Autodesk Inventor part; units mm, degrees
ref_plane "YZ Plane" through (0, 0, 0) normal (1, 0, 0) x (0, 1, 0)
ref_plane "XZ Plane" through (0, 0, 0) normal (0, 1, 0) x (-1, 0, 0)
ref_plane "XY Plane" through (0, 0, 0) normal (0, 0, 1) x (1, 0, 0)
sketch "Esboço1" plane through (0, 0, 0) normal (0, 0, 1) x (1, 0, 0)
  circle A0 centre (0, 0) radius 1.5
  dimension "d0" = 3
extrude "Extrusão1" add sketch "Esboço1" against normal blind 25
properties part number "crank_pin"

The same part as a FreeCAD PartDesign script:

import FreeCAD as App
import Part
import Sketcher

doc = App.newDocument("Part")
params = doc.addObject("Spreadsheet::Sheet", "Params")
for row, (alias, value) in enumerate([
    ("sketch1_diameter", "3 mm"),
    ("pad1_length", "25 mm"),
], start=1):
    params.set(f"A{row}", alias)
    params.set(f"B{row}", "=" + value)
    params.setAlias(f"B{row}", alias)

body = doc.addObject("PartDesign::Body", "Body")

sketch1 = doc.addObject("Sketcher::SketchObject", "Sketch")
body.addObject(sketch1)
sketch1.AttachmentSupport = (doc.XY_Plane, [""])
sketch1.MapMode = "FlatFace"
sketch1.addGeometry(Part.Circle(App.Vector(0, 0, 0), App.Vector(0, 0, 1), 1.5), False)
sketch1.addConstraint([
    Sketcher.Constraint("Coincident", 0, 3, -1, 1),
    Sketcher.Constraint("Diameter", 0, 3.0),
])
sketch1.setExpression("Constraints[1]", "Params.sketch1_diameter")
pad1 = doc.addObject("PartDesign::Pad", "Pad")
body.addObject(pad1)
pad1.Profile = sketch1
pad1.setExpression("Length", "Params.pad1_length")
pad1.Reversed = True

doc.recompute()
